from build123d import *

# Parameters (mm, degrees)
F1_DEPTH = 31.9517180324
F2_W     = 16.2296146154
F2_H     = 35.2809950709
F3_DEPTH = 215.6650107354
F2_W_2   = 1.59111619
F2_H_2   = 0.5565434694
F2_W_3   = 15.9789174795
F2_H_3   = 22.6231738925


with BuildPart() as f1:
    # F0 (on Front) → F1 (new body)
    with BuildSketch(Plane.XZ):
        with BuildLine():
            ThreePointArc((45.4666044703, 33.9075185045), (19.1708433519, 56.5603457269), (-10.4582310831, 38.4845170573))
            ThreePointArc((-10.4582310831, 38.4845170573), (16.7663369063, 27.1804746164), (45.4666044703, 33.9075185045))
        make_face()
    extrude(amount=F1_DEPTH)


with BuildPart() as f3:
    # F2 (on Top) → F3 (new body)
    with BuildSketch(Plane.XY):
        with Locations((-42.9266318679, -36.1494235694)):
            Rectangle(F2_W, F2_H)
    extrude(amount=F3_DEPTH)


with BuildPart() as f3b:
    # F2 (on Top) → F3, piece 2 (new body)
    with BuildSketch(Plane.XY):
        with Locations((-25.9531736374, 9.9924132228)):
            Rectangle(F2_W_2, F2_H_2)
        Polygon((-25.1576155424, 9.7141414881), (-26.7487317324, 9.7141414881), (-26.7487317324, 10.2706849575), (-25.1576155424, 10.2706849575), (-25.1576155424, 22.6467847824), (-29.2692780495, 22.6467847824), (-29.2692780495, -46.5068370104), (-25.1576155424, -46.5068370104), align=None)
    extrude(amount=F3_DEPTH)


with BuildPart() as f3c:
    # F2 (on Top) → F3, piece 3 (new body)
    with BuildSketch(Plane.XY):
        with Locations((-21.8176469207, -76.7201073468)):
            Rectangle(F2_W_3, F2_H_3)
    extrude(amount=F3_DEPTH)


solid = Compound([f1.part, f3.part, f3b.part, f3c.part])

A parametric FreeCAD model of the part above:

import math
import FreeCAD as App
import Part
import Sketcher
Q = App.Units.Quantity

doc = App.newDocument("Part")
body = doc.addObject("PartDesign::Body", "Body")

# Sketch on XZ plane
sketch1 = doc.addObject("Sketcher::SketchObject", "Sketch")
body.addObject(sketch1)
sketch1.AttachmentSupport = (doc.XZ_Plane, [""])
sketch1.MapMode = "FlatFace"
sketch1.addGeometry(Part.ArcOfCircle(Part.Circle(App.Vector(16.766337, 27.180475, 0), App.Vector(0, 0, 1), 29.478102), math.radians(13.191403), math.radians(157.451054)), False)
sketch1.addGeometry(Part.ArcOfCircle(Part.Circle(App.Vector(20.684242, 75.052068, 0), App.Vector(0, 0, 1), 48.03165), math.radians(-130.419121), math.radians(-58.938422)), False)
sketch1.addConstraint(Sketcher.Constraint("Coincident", 0, 1, 1, 2))
sketch1.addConstraint(Sketcher.Constraint("Coincident", 1, 1, 0, 2))
sketch1.addConstraint(Sketcher.Constraint("Radius", 0, Q("29.478102 mm")))
sketch1.addConstraint(Sketcher.Constraint("Radius", 1, Q("48.03165 mm")))
sketch1.addConstraint(Sketcher.Constraint("DistanceY", 0, 1, 1, 1, Q("4.576999 mm")))
sketch1.addConstraint(Sketcher.Constraint("DistanceY", -1, 1, 0, 1, Q("33.907519 mm")))
sketch1.addConstraint(Sketcher.Constraint("DistanceX", 1, 1, -1, 1, Q("10.458231 mm")))
sketch1.addConstraint(Sketcher.Constraint("DistanceY", 0, 1, 1, 3, Q("41.144549 mm")))
pad1 = doc.addObject("PartDesign::Pad", "Pad")
body.addObject(pad1)
pad1.Profile = sketch1
pad1.Length = 31.951718
body2 = doc.addObject("PartDesign::Body", "Body001")

# Sketch on XY plane
sketch2 = doc.addObject("Sketcher::SketchObject", "Sketch001")
body2.addObject(sketch2)
sketch2.AttachmentSupport = (doc.getObject("XY_Plane001"), [""])
sketch2.MapMode = "FlatFace"
sketch2.addGeometry(Part.LineSegment(App.Vector(-51.041439, -18.508926, 0), App.Vector(-51.041439, -53.789921, 0)), False)
sketch2.addGeometry(Part.LineSegment(App.Vector(-51.041439, -53.789921, 0), App.Vector(-34.811825, -53.789921, 0)), False)
sketch2.addGeometry(Part.LineSegment(App.Vector(-34.811825, -53.789921, 0), App.Vector(-34.811825, -18.508926, 0)), False)
sketch2.addGeometry(Part.LineSegment(App.Vector(-34.811825, -18.508926, 0), App.Vector(-51.041439, -18.508926, 0)), False)
sketch2.addConstraint(Sketcher.Constraint("Coincident", 0, 2, 1, 1))
sketch2.addConstraint(Sketcher.Constraint("Coincident", 1, 2, 2, 1))
sketch2.addConstraint(Sketcher.Constraint("Coincident", 2, 2, 3, 1))
sketch2.addConstraint(Sketcher.Constraint("Coincident", 3, 2, 0, 1))
sketch2.addConstraint(Sketcher.Constraint("Vertical", 0))
sketch2.addConstraint(Sketcher.Constraint("Horizontal", 1))
sketch2.addConstraint(Sketcher.Constraint("Vertical", 2))
sketch2.addConstraint(Sketcher.Constraint("Horizontal", 3))
sketch2.addConstraint(Sketcher.Constraint("DistanceX", 1, 1, 1, 2, Q("16.229615 mm")))
sketch2.addConstraint(Sketcher.Constraint("DistanceY", 0, 2, 0, 1, Q("35.280995 mm")))
sketch2.addConstraint(Sketcher.Constraint("DistanceX", 0, 2, -1, 1, Q("51.041439 mm")))
sketch2.addConstraint(Sketcher.Constraint("DistanceY", 0, 2, -1, 1, Q("53.789921 mm")))
pad2 = doc.addObject("PartDesign::Pad", "Pad001")
body2.addObject(pad2)
pad2.Profile = sketch2
pad2.Length = 215.665011
body3 = doc.addObject("PartDesign::Body", "Body002")

# Sketch on XY plane
sketch3 = doc.addObject("Sketcher::SketchObject", "Sketch002")
body3.addObject(sketch3)
sketch3.AttachmentSupport = (doc.getObject("XY_Plane002"), [""])
sketch3.MapMode = "FlatFace"
sketch3.addGeometry(Part.LineSegment(App.Vector(-25.157616, 22.646785, 0), App.Vector(-29.269278, 22.646785, 0)), False)
sketch3.addGeometry(Part.LineSegment(App.Vector(-29.269278, 22.646785, 0), App.Vector(-29.269278, -46.506837, 0)), False)
sketch3.addGeometry(Part.LineSegment(App.Vector(-29.269278, -46.506837, 0), App.Vector(-25.157616, -46.506837, 0)), False)
sketch3.addGeometry(Part.LineSegment(App.Vector(-25.157616, -46.506837, 0), App.Vector(-25.157616, 22.646785, 0)), False)
sketch3.addConstraint(Sketcher.Constraint("Coincident", 0, 2, 1, 1))
sketch3.addConstraint(Sketcher.Constraint("Coincident", 1, 2, 2, 1))
sketch3.addConstraint(Sketcher.Constraint("Coincident", 2, 2, 3, 1))
sketch3.addConstraint(Sketcher.Constraint("Coincident", 3, 2, 0, 1))
sketch3.addConstraint(Sketcher.Constraint("Horizontal", 0))
sketch3.addConstraint(Sketcher.Constraint("Vertical", 1))
sketch3.addConstraint(Sketcher.Constraint("Horizontal", 2))
sketch3.addConstraint(Sketcher.Constraint("Vertical", 3))
sketch3.addConstraint(Sketcher.Constraint("DistanceY", 1, 2, 1, 1, Q("69.153622 mm")))
sketch3.addConstraint(Sketcher.Constraint("DistanceX", 0, 2, 0, 1, Q("4.111663 mm")))
sketch3.addConstraint(Sketcher.Constraint("DistanceX", 0, 2, -1, 1, Q("29.269278 mm")))
sketch3.addConstraint(Sketcher.Constraint("DistanceY", -1, 1, 0, 2, Q("22.646785 mm")))
pad3 = doc.addObject("PartDesign::Pad", "Pad002")
body3.addObject(pad3)
pad3.Profile = sketch3
pad3.Length = 215.665011
body4 = doc.addObject("PartDesign::Body", "Body003")

# Sketch on XY plane
sketch4 = doc.addObject("Sketcher::SketchObject", "Sketch003")
body4.addObject(sketch4)
sketch4.AttachmentSupport = (doc.getObject("XY_Plane003"), [""])
sketch4.MapMode = "FlatFace"
sketch4.addGeometry(Part.LineSegment(App.Vector(-29.807106, -65.40852, 0), App.Vector(-29.807106, -88.031694, 0)), False)
sketch4.addGeometry(Part.LineSegment(App.Vector(-29.807106, -88.031694, 0), App.Vector(-13.828188, -88.031694, 0)), False)
sketch4.addGeometry(Part.LineSegment(App.Vector(-13.828188, -88.031694, 0), App.Vector(-13.828188, -65.40852, 0)), False)
sketch4.addGeometry(Part.LineSegment(App.Vector(-13.828188, -65.40852, 0), App.Vector(-29.807106, -65.40852, 0)), False)
sketch4.addConstraint(Sketcher.Constraint("Coincident", 0, 2, 1, 1))
sketch4.addConstraint(Sketcher.Constraint("Coincident", 1, 2, 2, 1))
sketch4.addConstraint(Sketcher.Constraint("Coincident", 2, 2, 3, 1))
sketch4.addConstraint(Sketcher.Constraint("Coincident", 3, 2, 0, 1))
sketch4.addConstraint(Sketcher.Constraint("Vertical", 0))
sketch4.addConstraint(Sketcher.Constraint("Horizontal", 1))
sketch4.addConstraint(Sketcher.Constraint("Vertical", 2))
sketch4.addConstraint(Sketcher.Constraint("Horizontal", 3))
sketch4.addConstraint(Sketcher.Constraint("DistanceX", 1, 1, 1, 2, Q("15.978917 mm")))
sketch4.addConstraint(Sketcher.Constraint("DistanceY", 0, 2, 0, 1, Q("22.623174 mm")))
sketch4.addConstraint(Sketcher.Constraint("DistanceX", 1, 2, -1, 1, Q("13.828188 mm")))
sketch4.addConstraint(Sketcher.Constraint("DistanceY", 2, 2, -1, 1, Q("65.40852 mm")))
pad4 = doc.addObject("PartDesign::Pad", "Pad003")
body4.addObject(pad4)
pad4.Profile = sketch4
pad4.Length = 215.665011

doc.recompute()
